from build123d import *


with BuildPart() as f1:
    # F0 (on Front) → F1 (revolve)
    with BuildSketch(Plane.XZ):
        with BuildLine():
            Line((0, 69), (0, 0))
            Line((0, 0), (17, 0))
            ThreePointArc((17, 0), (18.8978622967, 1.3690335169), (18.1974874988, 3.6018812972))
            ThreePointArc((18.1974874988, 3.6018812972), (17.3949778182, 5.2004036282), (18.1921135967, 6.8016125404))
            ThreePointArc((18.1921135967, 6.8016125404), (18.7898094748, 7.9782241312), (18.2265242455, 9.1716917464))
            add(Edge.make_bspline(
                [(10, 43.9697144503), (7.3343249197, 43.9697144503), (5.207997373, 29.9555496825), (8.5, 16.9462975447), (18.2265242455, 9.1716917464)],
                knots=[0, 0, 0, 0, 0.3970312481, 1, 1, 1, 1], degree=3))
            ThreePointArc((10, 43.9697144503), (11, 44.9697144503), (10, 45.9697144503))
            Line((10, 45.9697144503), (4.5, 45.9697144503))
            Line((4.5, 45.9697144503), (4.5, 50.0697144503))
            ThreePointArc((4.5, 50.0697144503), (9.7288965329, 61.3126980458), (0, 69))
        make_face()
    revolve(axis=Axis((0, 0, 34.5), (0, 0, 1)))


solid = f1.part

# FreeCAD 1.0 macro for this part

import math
import FreeCAD as App
import Part
import Sketcher

V = App.Vector

doc = App.newDocument("Part")
body = doc.addObject("PartDesign::Body", "Body")

sketch1 = body.newObject("Sketcher::SketchObject", "Sketch")
sketch1.AttachmentSupport = (doc.getObject("XZ_Plane"), [""])
sketch1.MapMode = "FlatFace"
sketch1.addGeometry(Part.LineSegment(V(0, 69, 0), V(0, 0, 0)), False)
sketch1.addGeometry(Part.LineSegment(V(0, 0, 0), V(17, 0, 0)), False)
sketch1.addGeometry(Part.ArcOfCircle(Part.Circle(V(17, 2, 0), V(0, 0, 1), 2), math.radians(-90), math.radians(53.220022)), False)
sketch1.addGeometry(Part.ArcOfCircle(Part.Circle(V(19.394975, 5.203763, 0), V(0, 0, 1), 2), math.radians(126.972433), math.radians(233.220022)), False)
sketch1.addGeometry(Part.ArcOfCircle(Part.Circle(V(17.289968, 8, 0), V(0, 0, 1), 1.5), math.radians(-53.027567), math.radians(51.363955)), False)
sketch1.addGeometry(Part.BSplineCurve([V(10, 43.969714, 0), V(7.334325, 43.969714, 0), V(5.207997, 29.95555, 0), V(8.5, 16.946298, 0), V(18.226524, 9.171692, 0)], [4, 1, 4], [0, 0.397031248, 1], False, 3, [1, 1, 1, 1, 1], False), False)
sketch1.addGeometry(Part.ArcOfCircle(Part.Circle(V(10, 44.969714, 0), V(0, 0, 1), 1), math.radians(-90), math.radians(90)), False)
sketch1.addGeometry(Part.LineSegment(V(10, 45.969714, 0), V(4.5, 45.969714, 0)), False)
sketch1.addGeometry(Part.LineSegment(V(4.5, 45.969714, 0), V(4.5, 50.069714, 0)), False)
sketch1.addGeometry(Part.ArcOfCircle(Part.Circle(V(0, 59, 0), V(0, 0, 1), 10), math.radians(-63.256316), math.radians(90)), False)
sketch1.addConstraint(Sketcher.Constraint("Block", 5))
sketch1.addConstraint(Sketcher.Constraint("Coincident", 0, 2, 1, 1))
sketch1.addConstraint(Sketcher.Constraint("Tangent", 1, 2, 2, 1))
sketch1.addConstraint(Sketcher.Constraint("Tangent", 2, 2, 3, 2))
sketch1.addConstraint(Sketcher.Constraint("Tangent", 3, 1, 4, 1))
sketch1.addConstraint(Sketcher.Constraint("Coincident", 4, 2, 5, 2))
sketch1.addConstraint(Sketcher.Constraint("Coincident", 5, 1, 6, 1))
sketch1.addConstraint(Sketcher.Constraint("Tangent", 6, 2, 7, 1))
sketch1.addConstraint(Sketcher.Constraint("Coincident", 7, 2, 8, 1))
sketch1.addConstraint(Sketcher.Constraint("Coincident", 8, 2, 9, 1))
sketch1.addConstraint(Sketcher.Constraint("Coincident", 9, 2, 0, 1))
sketch1.addConstraint(Sketcher.Constraint("Vertical", 0))
sketch1.addConstraint(Sketcher.Constraint("Horizontal", 1))
sketch1.addConstraint(Sketcher.Constraint("Horizontal", 7))
sketch1.addConstraint(Sketcher.Constraint("Vertical", 8))
sketch1.addConstraint(Sketcher.Constraint("Coincident", 0, 2, -1, 1))
sketch1.addConstraint(Sketcher.Constraint("Equal", 2, 3))
sketch1.addConstraint(Sketcher.Constraint("PointOnObject", 9, 3, -2))
sketch1.addConstraint(Sketcher.Constraint("Radius", 2, 2.0))
sketch1.addConstraint(Sketcher.Constraint("Radius", 6, 1.0))
sketch1.addConstraint(Sketcher.Constraint("Radius", 9, 10.0))
sketch1.addConstraint(Sketcher.Constraint("Radius", 4, 1.5))
sketch1.addConstraint(Sketcher.Constraint("DistanceX", 1, 1, 1, 2, 17.0))
sketch1.addConstraint(Sketcher.Constraint("DistanceY", 0, 2, 0, 1, 69.0))
sketch1.addConstraint(Sketcher.Constraint("DistanceX", 7, 2, 7, 1, 5.5))
sketch1.addConstraint(Sketcher.Constraint("DistanceY", 8, 1, 8, 2, 4.1))
sketch1.addConstraint(Sketcher.Constraint("DistanceY", -1, 1, 4, 3, 8.0))
revolution = body.newObject("PartDesign::Revolution", "Revolution")
revolution.Profile = sketch1
revolution.ReferenceAxis = (sketch1, ["V_Axis"])
revolution.Angle = 360

doc.recompute()
